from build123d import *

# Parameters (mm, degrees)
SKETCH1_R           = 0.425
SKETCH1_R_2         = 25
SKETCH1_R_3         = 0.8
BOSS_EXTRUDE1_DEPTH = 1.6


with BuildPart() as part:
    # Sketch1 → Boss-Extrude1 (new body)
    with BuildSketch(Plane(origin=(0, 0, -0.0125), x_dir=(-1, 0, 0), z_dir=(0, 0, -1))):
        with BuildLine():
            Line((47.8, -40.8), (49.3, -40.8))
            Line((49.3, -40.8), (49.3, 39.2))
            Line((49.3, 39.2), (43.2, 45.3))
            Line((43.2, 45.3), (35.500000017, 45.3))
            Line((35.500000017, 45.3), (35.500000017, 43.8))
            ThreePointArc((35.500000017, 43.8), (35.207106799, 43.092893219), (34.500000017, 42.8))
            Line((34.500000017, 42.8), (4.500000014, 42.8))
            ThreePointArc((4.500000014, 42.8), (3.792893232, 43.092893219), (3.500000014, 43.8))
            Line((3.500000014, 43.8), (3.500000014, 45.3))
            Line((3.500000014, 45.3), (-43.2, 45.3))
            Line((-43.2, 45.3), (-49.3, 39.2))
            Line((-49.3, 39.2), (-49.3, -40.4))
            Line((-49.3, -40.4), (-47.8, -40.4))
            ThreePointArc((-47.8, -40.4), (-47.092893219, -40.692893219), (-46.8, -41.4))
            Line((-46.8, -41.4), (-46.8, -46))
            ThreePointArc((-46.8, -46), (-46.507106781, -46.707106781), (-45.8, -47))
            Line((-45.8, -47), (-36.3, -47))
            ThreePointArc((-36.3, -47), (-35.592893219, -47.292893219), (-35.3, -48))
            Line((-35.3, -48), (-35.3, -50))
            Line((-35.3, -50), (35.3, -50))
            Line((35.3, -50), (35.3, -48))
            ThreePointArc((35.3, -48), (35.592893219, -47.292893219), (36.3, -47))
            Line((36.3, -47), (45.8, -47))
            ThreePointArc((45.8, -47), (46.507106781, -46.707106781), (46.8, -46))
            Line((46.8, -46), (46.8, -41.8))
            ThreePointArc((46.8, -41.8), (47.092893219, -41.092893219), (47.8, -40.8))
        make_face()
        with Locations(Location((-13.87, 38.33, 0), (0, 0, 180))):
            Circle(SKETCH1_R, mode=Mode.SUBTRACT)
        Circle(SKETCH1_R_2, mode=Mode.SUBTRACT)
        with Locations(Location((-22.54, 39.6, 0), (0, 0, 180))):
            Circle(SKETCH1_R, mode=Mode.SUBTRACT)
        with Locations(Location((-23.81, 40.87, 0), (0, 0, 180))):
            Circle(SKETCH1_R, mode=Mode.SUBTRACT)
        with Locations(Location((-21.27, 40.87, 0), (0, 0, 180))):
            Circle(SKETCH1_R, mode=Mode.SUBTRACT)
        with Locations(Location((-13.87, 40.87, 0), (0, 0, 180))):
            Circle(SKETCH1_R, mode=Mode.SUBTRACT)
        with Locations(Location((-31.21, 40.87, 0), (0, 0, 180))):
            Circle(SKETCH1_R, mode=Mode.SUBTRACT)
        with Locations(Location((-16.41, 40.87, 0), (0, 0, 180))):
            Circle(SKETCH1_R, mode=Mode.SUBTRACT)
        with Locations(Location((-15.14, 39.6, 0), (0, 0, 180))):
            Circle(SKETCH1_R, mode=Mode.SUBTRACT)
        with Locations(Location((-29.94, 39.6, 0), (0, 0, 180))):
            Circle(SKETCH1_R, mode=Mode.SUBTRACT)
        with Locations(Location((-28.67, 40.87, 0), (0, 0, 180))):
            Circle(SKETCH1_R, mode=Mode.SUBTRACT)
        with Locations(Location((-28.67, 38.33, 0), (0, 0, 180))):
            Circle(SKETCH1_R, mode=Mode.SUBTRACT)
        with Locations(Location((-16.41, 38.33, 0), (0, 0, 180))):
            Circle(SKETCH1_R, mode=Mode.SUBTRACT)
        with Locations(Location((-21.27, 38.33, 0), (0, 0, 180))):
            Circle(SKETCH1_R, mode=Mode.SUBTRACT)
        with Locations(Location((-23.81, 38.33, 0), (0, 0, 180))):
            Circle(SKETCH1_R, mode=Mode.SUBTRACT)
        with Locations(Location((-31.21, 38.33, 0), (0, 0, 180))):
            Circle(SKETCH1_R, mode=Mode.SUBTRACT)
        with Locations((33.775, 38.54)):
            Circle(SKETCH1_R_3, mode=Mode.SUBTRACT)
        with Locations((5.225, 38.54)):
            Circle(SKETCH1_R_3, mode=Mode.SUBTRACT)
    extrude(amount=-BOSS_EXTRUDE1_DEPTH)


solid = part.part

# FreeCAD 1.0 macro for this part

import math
import FreeCAD as App
import Part
import Sketcher
Q = App.Units.Quantity

doc = App.newDocument("Part")
params = doc.addObject("Spreadsheet::Sheet", "Params")
for row, (alias, value) in enumerate([
    ("sketch1_diameter", "50 mm"),
    ("sketch1_radius", "1 mm"),
    ("sketch1_diameter2", "1.6 mm"),
    ("sketch1_diameter3", "0.85 mm"),
    ("sketch1_width", "30 mm"),
    ("pad1_length", "1.6 mm"),
], start=1):
    params.set(f"A{row}", alias)
    params.set(f"B{row}", "=" + value)
    params.setAlias(f"B{row}", alias)

body = doc.addObject("PartDesign::Body", "Body")

sketch1 = body.newObject("Sketcher::SketchObject", "Sketch")
sketch1.AttachmentSupport = (doc.getObject("XY_Plane"), [""])
sketch1.MapMode = "FlatFace"
sketch1.AttachmentOffset = App.Placement(App.Vector(0, 0, -0.0125), App.Rotation())
sketch1.addGeometry([
    Part.LineSegment(App.Vector(-47.8, -40.8, 0), App.Vector(-49.3, -40.8, 0)),
    Part.LineSegment(App.Vector(-49.3, -40.8, 0), App.Vector(-49.3, 39.2, 0)),
    Part.LineSegment(App.Vector(-49.3, 39.2, 0), App.Vector(-43.2, 45.3, 0)),
    Part.LineSegment(App.Vector(-43.2, 45.3, 0), App.Vector(-35.5, 45.3, 0)),
    Part.LineSegment(App.Vector(-35.5, 45.3, 0), App.Vector(-35.5, 43.8, 0)),
    Part.ArcOfCircle(Part.Circle(App.Vector(-34.5, 43.8, 0), App.Vector(0, 0, 1), 1), math.radians(180), math.radians(270)),
    Part.LineSegment(App.Vector(-34.5, 42.8, 0), App.Vector(-4.5, 42.8, 0)),
    Part.ArcOfCircle(Part.Circle(App.Vector(-4.5, 43.8, 0), App.Vector(0, 0, 1), 1), math.radians(-90), math.radians(0)),
    Part.LineSegment(App.Vector(-3.5, 43.8, 0), App.Vector(-3.5, 45.3, 0)),
    Part.LineSegment(App.Vector(-3.5, 45.3, 0), App.Vector(43.2, 45.3, 0)),
    Part.LineSegment(App.Vector(43.2, 45.3, 0), App.Vector(49.3, 39.2, 0)),
    Part.LineSegment(App.Vector(49.3, 39.2, 0), App.Vector(49.3, -40.4, 0)),
    Part.LineSegment(App.Vector(49.3, -40.4, 0), App.Vector(47.8, -40.4, 0)),
    Part.ArcOfCircle(Part.Circle(App.Vector(47.8, -41.4, 0), App.Vector(0, 0, 1), 1), math.radians(90), math.radians(180)),
    Part.LineSegment(App.Vector(46.8, -41.4, 0), App.Vector(46.8, -46, 0)),
    Part.ArcOfCircle(Part.Circle(App.Vector(45.8, -46, 0), App.Vector(0, 0, 1), 1), math.radians(-90), math.radians(0)),
    Part.LineSegment(App.Vector(45.8, -47, 0), App.Vector(36.3, -47, 0)),
    Part.ArcOfCircle(Part.Circle(App.Vector(36.3, -48, 0), App.Vector(0, 0, 1), 1), math.radians(90), math.radians(180)),
    Part.LineSegment(App.Vector(35.3, -48, 0), App.Vector(35.3, -50, 0)),
    Part.LineSegment(App.Vector(35.3, -50, 0), App.Vector(-35.3, -50, 0)),
    Part.LineSegment(App.Vector(-35.3, -50, 0), App.Vector(-35.3, -48, 0)),
    Part.ArcOfCircle(Part.Circle(App.Vector(-36.3, -48, 0), App.Vector(0, 0, 1), 1), math.radians(0), math.radians(90)),
    Part.LineSegment(App.Vector(-36.3, -47, 0), App.Vector(-45.8, -47, 0)),
    Part.ArcOfCircle(Part.Circle(App.Vector(-45.8, -46, 0), App.Vector(0, 0, 1), 1), math.radians(-180), math.radians(-90)),
    Part.LineSegment(App.Vector(-46.8, -46, 0), App.Vector(-46.8, -41.8, 0)),
    Part.ArcOfCircle(Part.Circle(App.Vector(-47.8, -41.8, 0), App.Vector(0, 0, 1), 1), math.radians(0), math.radians(90)),
    Part.Circle(App.Vector(0, 0, 0), App.Vector(0, 0, 1), 25),
    Part.Circle(App.Vector(31.21, 38.33, 0), App.Vector(0, 0, 1), 0.42),
    Part.Circle(App.Vector(28.67, 38.33, 0), App.Vector(0, 0, 1), 0.42),
    Part.Circle(App.Vector(29.94, 39.6, 0), App.Vector(0, 0, 1), 0.42),
    Part.Circle(App.Vector(31.21, 40.87, 0), App.Vector(0, 0, 1), 0.42),
    Part.Circle(App.Vector(28.67, 40.87, 0), App.Vector(0, 0, 1), 0.42),
    Part.Circle(App.Vector(23.81, 38.33, 0), App.Vector(0, 0, 1), 0.42),
    Part.Circle(App.Vector(23.81, 40.87, 0), App.Vector(0, 0, 1), 0.42),
    Part.Circle(App.Vector(21.27, 38.33, 0), App.Vector(0, 0, 1), 0.42),
    Part.Circle(App.Vector(22.54, 39.6, 0), App.Vector(0, 0, 1), 0.42),
    Part.Circle(App.Vector(21.27, 40.87, 0), App.Vector(0, 0, 1), 0.42),
    Part.Circle(App.Vector(16.41, 38.33, 0), App.Vector(0, 0, 1), 0.42),
    Part.Circle(App.Vector(15.14, 39.6, 0), App.Vector(0, 0, 1), 0.42),
    Part.Circle(App.Vector(16.41, 40.87, 0), App.Vector(0, 0, 1), 0.42),
    Part.Circle(App.Vector(13.87, 38.33, 0), App.Vector(0, 0, 1), 0.42),
    Part.Circle(App.Vector(13.87, 40.87, 0), App.Vector(0, 0, 1), 0.42),
    Part.Circle(App.Vector(-5.22, 38.54, 0), App.Vector(0, 0, 1), 0.8),
    Part.Circle(App.Vector(-33.77, 38.54, 0), App.Vector(0, 0, 1), 0.8),
], False)
sketch1.addConstraint([
    Sketcher.Constraint("Coincident", 0, 2, 1, 1),
    Sketcher.Constraint("Coincident", 1, 2, 2, 1),
    Sketcher.Constraint("Coincident", 2, 2, 3, 1),
    Sketcher.Constraint("Coincident", 3, 2, 4, 1),
    Sketcher.Constraint("Tangent", 4, 2, 5, 1),
    Sketcher.Constraint("Tangent", 5, 2, 6, 1),
    Sketcher.Constraint("Tangent", 6, 2, 7, 1),
    Sketcher.Constraint("Tangent", 7, 2, 8, 1),
    Sketcher.Constraint("Coincident", 8, 2, 9, 1),
    Sketcher.Constraint("Coincident", 9, 2, 10, 1),
    Sketcher.Constraint("Coincident", 10, 2, 11, 1),
    Sketcher.Constraint("Coincident", 11, 2, 12, 1),
    Sketcher.Constraint("Tangent", 12, 2, 13, 1),
    Sketcher.Constraint("Tangent", 13, 2, 14, 1),
    Sketcher.Constraint("Tangent", 14, 2, 15, 2),
    Sketcher.Constraint("Tangent", 15, 1, 16, 1),
    Sketcher.Constraint("Tangent", 16, 2, 17, 1),
    Sketcher.Constraint("Tangent", 17, 2, 18, 1),
    Sketcher.Constraint("Coincident", 18, 2, 19, 1),
    Sketcher.Constraint("Coincident", 19, 2, 20, 1),
    Sketcher.Constraint("Tangent", 20, 2, 21, 1),
    Sketcher.Constraint("Tangent", 21, 2, 22, 1),
    Sketcher.Constraint("Tangent", 22, 2, 23, 2),
    Sketcher.Constraint("Tangent", 23, 1, 24, 1),
    Sketcher.Constraint("Tangent", 24, 2, 25, 1),
    Sketcher.Constraint("Tangent", 25, 2, 0, 1),
    Sketcher.Constraint("Horizontal", 0),
    Sketcher.Constraint("Vertical", 1),
    Sketcher.Constraint("Horizontal", 3),
    Sketcher.Constraint("Vertical", 4),
    Sketcher.Constraint("Horizontal", 6),
    Sketcher.Constraint("Vertical", 8),
    Sketcher.Constraint("Horizontal", 9),
    Sketcher.Constraint("Vertical", 11),
    Sketcher.Constraint("Horizontal", 12),
    Sketcher.Constraint("Vertical", 14),
    Sketcher.Constraint("Horizontal", 16),
    Sketcher.Constraint("Vertical", 18),
    Sketcher.Constraint("Horizontal", 19),
    Sketcher.Constraint("Vertical", 20),
    Sketcher.Constraint("Horizontal", 22),
    Sketcher.Constraint("Vertical", 24),
    Sketcher.Constraint("Coincident", 26, 3, -1, 1),
    Sketcher.Constraint("Equal", 5, 7),
    Sketcher.Constraint("Equal", 7, 13),
    Sketcher.Constraint("Equal", 13, 15),
    Sketcher.Constraint("Equal", 15, 17),
    Sketcher.Constraint("Equal", 17, 21),
    Sketcher.Constraint("Equal", 21, 23),
    Sketcher.Constraint("Equal", 23, 25),
    Sketcher.Constraint("Equal", 27, 28),
    Sketcher.Constraint("Equal", 28, 29),
    Sketcher.Constraint("Equal", 29, 30),
    Sketcher.Constraint("Equal", 30, 31),
    Sketcher.Constraint("Equal", 31, 32),
    Sketcher.Constraint("Equal", 32, 33),
    Sketcher.Constraint("Equal", 33, 34),
    Sketcher.Constraint("Equal", 34, 35),
    Sketcher.Constraint("Equal", 35, 36),
    Sketcher.Constraint("Equal", 36, 37),
    Sketcher.Constraint("Equal", 37, 38),
    Sketcher.Constraint("Equal", 38, 39),
    Sketcher.Constraint("Equal", 39, 40),
    Sketcher.Constraint("Equal", 40, 41),
    Sketcher.Constraint("Equal", 42, 43),
    Sketcher.Constraint("Symmetric", 17, 3, 21, 3, -2),
    Sketcher.Constraint("Symmetric", 2, 2, 9, 2, -2),
    Sketcher.Constraint("Symmetric", 1, 2, 10, 2, -2),
    Sketcher.Constraint("Perpendicular", 2, 10),
    Sketcher.Constraint("Horizontal", 27, 3, 28, 3),
    Sketcher.Constraint("Horizontal", 30, 3, 31, 3),
    Sketcher.Constraint("Horizontal", 28, 3, 32, 3),
    Sketcher.Constraint("Horizontal", 31, 3, 33, 3),
    Sketcher.Constraint("Horizontal", 32, 3, 34, 3),
    Sketcher.Constraint("Horizontal", 29, 3, 35, 3),
    Sketcher.Constraint("Horizontal", 33, 3, 36, 3),
    Sketcher.Constraint("Horizontal", 34, 3, 37, 3),
    Sketcher.Constraint("Horizontal", 35, 3, 38, 3),
    Sketcher.Constraint("Horizontal", 36, 3, 39, 3),
    Sketcher.Constraint("Horizontal", 37, 3, 40, 3),
    Sketcher.Constraint("Horizontal", 39, 3, 41, 3),
    Sketcher.Constraint("Horizontal", 42, 3, 43, 3),
    Sketcher.Constraint("Vertical", 27, 3, 30, 3),
    Sketcher.Constraint("Vertical", 28, 3, 31, 3),
    Sketcher.Constraint("Vertical", 32, 3, 33, 3),
    Sketcher.Constraint("Vertical", 34, 3, 36, 3),
    Sketcher.Constraint("Vertical", 37, 3, 39, 3),
    Sketcher.Constraint("Vertical", 40, 3, 41, 3),
    Sketcher.Constraint("Equal", 0, 12),
    Sketcher.Constraint("Equal", 12, 4),
    Sketcher.Constraint("Diameter", 26, Q("50 mm")),
    Sketcher.Constraint("Radius", 5, Q("1 mm")),
    Sketcher.Constraint("Diameter", 42, Q("1.6 mm")),
    Sketcher.Constraint("Diameter", 27, Q("0.85 mm")),
    Sketcher.Constraint("DistanceX", 6, 1, 6, 2, Q("30 mm")),
    Sketcher.Constraint("DistanceY", 1, 1, 1, 2, Q("80 mm")),
    Sketcher.Constraint("DistanceY", 18, 2, 18, 1, Q("2 mm")),
    Sketcher.Constraint("DistanceX", 0, 2, 0, 1, Q("1.5 mm")),
    Sketcher.Constraint("DistanceX", 3, 1, 3, 2, Q("7.7 mm")),
    Sketcher.Constraint("DistanceX", 9, 1, 9, 2, Q("46.7 mm")),
    Sketcher.Constraint("DistanceX", 16, 2, 16, 1, Q("9.5 mm")),
    Sketcher.Constraint("DistanceX", 19, 2, 19, 1, Q("70.6 mm")),
    Sketcher.Constraint("DistanceY", 11, 2, 11, 1, Q("79.6 mm")),
    Sketcher.Constraint("DistanceY", 14, 2, 14, 1, Q("4.6 mm")),
    Sketcher.Constraint("DistanceY", 15, 3, -1, 1, Q("46 mm")),
    Sketcher.Constraint("DistanceY", -1, 1, 29, 3, Q("39.6 mm")),
    Sketcher.Constraint("DistanceX", 32, 3, 27, 3, Q("7.4 mm")),
    Sketcher.Constraint("DistanceX", 34, 3, 28, 3, Q("7.4 mm")),
    Sketcher.Constraint("DistanceX", 37, 3, 32, 3, Q("7.4 mm")),
    Sketcher.Constraint("DistanceX", 38, 3, 35, 3, Q("7.4 mm")),
    Sketcher.Constraint("DistanceX", 40, 3, 34, 3, Q("7.4 mm")),
    Sketcher.Constraint("DistanceX", -1, 1, 27, 3, Q("31.21 mm")),
    Sketcher.Constraint("DistanceY", -1, 1, 27, 3, Q("38.33 mm")),
    Sketcher.Constraint("DistanceX", -1, 1, 28, 3, Q("28.67 mm")),
    Sketcher.Constraint("DistanceX", -1, 1, 29, 3, Q("29.94 mm")),
    Sketcher.Constraint("DistanceY", -1, 1, 30, 3, Q("40.87 mm")),
    Sketcher.Constraint("DistanceX", -1, 1, 35, 3, Q("22.54 mm")),
    Sketcher.Constraint("DistanceY", -1, 1, 42, 3, Q("38.54 mm")),
    Sketcher.Constraint("DistanceX", 43, 3, 42, 3, Q("28.55 mm")),
    Sketcher.Constraint("DistanceX", 42, 3, -1, 1, Q("5.225 mm")),
])
sketch1.setExpression("Constraints[90]", "Params.sketch1_diameter")
sketch1.setExpression("Constraints[91]", "Params.sketch1_radius")
sketch1.setExpression("Constraints[92]", "Params.sketch1_diameter2")
sketch1.setExpression("Constraints[93]", "Params.sketch1_diameter3")
sketch1.setExpression("Constraints[94]", "Params.sketch1_width")
pad1 = body.newObject("PartDesign::Pad", "Pad")
pad1.Profile = sketch1
pad1.setExpression("Length", "Params.pad1_length")

doc.recompute()
